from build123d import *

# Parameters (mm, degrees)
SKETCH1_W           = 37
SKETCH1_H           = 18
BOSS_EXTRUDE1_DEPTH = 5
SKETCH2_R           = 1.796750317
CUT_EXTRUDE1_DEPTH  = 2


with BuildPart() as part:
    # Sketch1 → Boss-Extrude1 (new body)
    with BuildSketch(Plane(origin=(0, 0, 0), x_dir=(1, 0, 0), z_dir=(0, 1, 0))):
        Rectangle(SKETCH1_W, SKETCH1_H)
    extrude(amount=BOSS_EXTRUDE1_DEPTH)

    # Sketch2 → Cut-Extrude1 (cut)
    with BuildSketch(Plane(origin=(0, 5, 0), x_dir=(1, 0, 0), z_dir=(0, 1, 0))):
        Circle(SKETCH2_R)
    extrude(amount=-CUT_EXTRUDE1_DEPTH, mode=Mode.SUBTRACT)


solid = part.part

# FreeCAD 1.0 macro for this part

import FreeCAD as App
import Part
import Sketcher

V = App.Vector
Q = App.Units.Quantity


def add_polygon(sketch, points):
    """Adds a closed chain of lines whose ends are joined by coincident constraints."""
    first, n = sketch.GeometryCount, len(points)
    for a, b in zip(points, points[1:] + points[:1]):
        sketch.addGeometry(Part.LineSegment(App.Vector(*a, 0), App.Vector(*b, 0)), False)
    for i in range(n):
        sketch.addConstraint(Sketcher.Constraint("Coincident", first + i, 2, first + (i + 1) % n, 1))

doc = App.newDocument("Part")
body = doc.addObject("PartDesign::Body", "Body")

# Sketch on XZ plane
sketch1 = doc.addObject("Sketcher::SketchObject", "Sketch")
body.addObject(sketch1)
sketch1.AttachmentSupport = (doc.XZ_Plane, [""])
sketch1.MapMode = "FlatFace"
add_polygon(sketch1, [(-18, -9), (-18, 9), (18, 9), (18, -9)])  # lines 0-3
sketch1.addConstraint([
    Sketcher.Constraint("Vertical", 0),
    Sketcher.Constraint("Horizontal", 1),
    Sketcher.Constraint("Vertical", 2),
    Sketcher.Constraint("Horizontal", 3),
    Sketcher.Constraint("Symmetric", 0, 2, 2, 2, -1, 1),
    Sketcher.Constraint("DistanceX", 1, 1, 1, 2, Q("37 mm")),
    Sketcher.Constraint("DistanceY", 0, 1, 0, 2, Q("18 mm")),
])
pad1 = doc.addObject("PartDesign::Pad", "Pad")
body.addObject(pad1)
pad1.Profile = sketch1
pad1.Length = 5
pad1.Reversed = True

# Sketch on XZ plane
sketch2 = doc.addObject("Sketcher::SketchObject", "Sketch001")
body.addObject(sketch2)
sketch2.AttachmentSupport = (doc.XZ_Plane, [""])
sketch2.MapMode = "FlatFace"
sketch2.AttachmentOffset = App.Placement(V(0, 0, -5), App.Rotation())
sketch2.addGeometry(Part.Circle(V(0, 0, 0), V(0, 0, 1), 1.8), False)
sketch2.addConstraint([
    Sketcher.Constraint("Coincident", 0, 3, -1, 1),
    Sketcher.Constraint("Diameter", 0, Q("3.593501 mm")),
])
pocket1 = doc.addObject("PartDesign::Pocket", "Pocket")
body.addObject(pocket1)
pocket1.Profile = sketch2
pocket1.Length = 2
pocket1.Reversed = True

doc.recompute()
